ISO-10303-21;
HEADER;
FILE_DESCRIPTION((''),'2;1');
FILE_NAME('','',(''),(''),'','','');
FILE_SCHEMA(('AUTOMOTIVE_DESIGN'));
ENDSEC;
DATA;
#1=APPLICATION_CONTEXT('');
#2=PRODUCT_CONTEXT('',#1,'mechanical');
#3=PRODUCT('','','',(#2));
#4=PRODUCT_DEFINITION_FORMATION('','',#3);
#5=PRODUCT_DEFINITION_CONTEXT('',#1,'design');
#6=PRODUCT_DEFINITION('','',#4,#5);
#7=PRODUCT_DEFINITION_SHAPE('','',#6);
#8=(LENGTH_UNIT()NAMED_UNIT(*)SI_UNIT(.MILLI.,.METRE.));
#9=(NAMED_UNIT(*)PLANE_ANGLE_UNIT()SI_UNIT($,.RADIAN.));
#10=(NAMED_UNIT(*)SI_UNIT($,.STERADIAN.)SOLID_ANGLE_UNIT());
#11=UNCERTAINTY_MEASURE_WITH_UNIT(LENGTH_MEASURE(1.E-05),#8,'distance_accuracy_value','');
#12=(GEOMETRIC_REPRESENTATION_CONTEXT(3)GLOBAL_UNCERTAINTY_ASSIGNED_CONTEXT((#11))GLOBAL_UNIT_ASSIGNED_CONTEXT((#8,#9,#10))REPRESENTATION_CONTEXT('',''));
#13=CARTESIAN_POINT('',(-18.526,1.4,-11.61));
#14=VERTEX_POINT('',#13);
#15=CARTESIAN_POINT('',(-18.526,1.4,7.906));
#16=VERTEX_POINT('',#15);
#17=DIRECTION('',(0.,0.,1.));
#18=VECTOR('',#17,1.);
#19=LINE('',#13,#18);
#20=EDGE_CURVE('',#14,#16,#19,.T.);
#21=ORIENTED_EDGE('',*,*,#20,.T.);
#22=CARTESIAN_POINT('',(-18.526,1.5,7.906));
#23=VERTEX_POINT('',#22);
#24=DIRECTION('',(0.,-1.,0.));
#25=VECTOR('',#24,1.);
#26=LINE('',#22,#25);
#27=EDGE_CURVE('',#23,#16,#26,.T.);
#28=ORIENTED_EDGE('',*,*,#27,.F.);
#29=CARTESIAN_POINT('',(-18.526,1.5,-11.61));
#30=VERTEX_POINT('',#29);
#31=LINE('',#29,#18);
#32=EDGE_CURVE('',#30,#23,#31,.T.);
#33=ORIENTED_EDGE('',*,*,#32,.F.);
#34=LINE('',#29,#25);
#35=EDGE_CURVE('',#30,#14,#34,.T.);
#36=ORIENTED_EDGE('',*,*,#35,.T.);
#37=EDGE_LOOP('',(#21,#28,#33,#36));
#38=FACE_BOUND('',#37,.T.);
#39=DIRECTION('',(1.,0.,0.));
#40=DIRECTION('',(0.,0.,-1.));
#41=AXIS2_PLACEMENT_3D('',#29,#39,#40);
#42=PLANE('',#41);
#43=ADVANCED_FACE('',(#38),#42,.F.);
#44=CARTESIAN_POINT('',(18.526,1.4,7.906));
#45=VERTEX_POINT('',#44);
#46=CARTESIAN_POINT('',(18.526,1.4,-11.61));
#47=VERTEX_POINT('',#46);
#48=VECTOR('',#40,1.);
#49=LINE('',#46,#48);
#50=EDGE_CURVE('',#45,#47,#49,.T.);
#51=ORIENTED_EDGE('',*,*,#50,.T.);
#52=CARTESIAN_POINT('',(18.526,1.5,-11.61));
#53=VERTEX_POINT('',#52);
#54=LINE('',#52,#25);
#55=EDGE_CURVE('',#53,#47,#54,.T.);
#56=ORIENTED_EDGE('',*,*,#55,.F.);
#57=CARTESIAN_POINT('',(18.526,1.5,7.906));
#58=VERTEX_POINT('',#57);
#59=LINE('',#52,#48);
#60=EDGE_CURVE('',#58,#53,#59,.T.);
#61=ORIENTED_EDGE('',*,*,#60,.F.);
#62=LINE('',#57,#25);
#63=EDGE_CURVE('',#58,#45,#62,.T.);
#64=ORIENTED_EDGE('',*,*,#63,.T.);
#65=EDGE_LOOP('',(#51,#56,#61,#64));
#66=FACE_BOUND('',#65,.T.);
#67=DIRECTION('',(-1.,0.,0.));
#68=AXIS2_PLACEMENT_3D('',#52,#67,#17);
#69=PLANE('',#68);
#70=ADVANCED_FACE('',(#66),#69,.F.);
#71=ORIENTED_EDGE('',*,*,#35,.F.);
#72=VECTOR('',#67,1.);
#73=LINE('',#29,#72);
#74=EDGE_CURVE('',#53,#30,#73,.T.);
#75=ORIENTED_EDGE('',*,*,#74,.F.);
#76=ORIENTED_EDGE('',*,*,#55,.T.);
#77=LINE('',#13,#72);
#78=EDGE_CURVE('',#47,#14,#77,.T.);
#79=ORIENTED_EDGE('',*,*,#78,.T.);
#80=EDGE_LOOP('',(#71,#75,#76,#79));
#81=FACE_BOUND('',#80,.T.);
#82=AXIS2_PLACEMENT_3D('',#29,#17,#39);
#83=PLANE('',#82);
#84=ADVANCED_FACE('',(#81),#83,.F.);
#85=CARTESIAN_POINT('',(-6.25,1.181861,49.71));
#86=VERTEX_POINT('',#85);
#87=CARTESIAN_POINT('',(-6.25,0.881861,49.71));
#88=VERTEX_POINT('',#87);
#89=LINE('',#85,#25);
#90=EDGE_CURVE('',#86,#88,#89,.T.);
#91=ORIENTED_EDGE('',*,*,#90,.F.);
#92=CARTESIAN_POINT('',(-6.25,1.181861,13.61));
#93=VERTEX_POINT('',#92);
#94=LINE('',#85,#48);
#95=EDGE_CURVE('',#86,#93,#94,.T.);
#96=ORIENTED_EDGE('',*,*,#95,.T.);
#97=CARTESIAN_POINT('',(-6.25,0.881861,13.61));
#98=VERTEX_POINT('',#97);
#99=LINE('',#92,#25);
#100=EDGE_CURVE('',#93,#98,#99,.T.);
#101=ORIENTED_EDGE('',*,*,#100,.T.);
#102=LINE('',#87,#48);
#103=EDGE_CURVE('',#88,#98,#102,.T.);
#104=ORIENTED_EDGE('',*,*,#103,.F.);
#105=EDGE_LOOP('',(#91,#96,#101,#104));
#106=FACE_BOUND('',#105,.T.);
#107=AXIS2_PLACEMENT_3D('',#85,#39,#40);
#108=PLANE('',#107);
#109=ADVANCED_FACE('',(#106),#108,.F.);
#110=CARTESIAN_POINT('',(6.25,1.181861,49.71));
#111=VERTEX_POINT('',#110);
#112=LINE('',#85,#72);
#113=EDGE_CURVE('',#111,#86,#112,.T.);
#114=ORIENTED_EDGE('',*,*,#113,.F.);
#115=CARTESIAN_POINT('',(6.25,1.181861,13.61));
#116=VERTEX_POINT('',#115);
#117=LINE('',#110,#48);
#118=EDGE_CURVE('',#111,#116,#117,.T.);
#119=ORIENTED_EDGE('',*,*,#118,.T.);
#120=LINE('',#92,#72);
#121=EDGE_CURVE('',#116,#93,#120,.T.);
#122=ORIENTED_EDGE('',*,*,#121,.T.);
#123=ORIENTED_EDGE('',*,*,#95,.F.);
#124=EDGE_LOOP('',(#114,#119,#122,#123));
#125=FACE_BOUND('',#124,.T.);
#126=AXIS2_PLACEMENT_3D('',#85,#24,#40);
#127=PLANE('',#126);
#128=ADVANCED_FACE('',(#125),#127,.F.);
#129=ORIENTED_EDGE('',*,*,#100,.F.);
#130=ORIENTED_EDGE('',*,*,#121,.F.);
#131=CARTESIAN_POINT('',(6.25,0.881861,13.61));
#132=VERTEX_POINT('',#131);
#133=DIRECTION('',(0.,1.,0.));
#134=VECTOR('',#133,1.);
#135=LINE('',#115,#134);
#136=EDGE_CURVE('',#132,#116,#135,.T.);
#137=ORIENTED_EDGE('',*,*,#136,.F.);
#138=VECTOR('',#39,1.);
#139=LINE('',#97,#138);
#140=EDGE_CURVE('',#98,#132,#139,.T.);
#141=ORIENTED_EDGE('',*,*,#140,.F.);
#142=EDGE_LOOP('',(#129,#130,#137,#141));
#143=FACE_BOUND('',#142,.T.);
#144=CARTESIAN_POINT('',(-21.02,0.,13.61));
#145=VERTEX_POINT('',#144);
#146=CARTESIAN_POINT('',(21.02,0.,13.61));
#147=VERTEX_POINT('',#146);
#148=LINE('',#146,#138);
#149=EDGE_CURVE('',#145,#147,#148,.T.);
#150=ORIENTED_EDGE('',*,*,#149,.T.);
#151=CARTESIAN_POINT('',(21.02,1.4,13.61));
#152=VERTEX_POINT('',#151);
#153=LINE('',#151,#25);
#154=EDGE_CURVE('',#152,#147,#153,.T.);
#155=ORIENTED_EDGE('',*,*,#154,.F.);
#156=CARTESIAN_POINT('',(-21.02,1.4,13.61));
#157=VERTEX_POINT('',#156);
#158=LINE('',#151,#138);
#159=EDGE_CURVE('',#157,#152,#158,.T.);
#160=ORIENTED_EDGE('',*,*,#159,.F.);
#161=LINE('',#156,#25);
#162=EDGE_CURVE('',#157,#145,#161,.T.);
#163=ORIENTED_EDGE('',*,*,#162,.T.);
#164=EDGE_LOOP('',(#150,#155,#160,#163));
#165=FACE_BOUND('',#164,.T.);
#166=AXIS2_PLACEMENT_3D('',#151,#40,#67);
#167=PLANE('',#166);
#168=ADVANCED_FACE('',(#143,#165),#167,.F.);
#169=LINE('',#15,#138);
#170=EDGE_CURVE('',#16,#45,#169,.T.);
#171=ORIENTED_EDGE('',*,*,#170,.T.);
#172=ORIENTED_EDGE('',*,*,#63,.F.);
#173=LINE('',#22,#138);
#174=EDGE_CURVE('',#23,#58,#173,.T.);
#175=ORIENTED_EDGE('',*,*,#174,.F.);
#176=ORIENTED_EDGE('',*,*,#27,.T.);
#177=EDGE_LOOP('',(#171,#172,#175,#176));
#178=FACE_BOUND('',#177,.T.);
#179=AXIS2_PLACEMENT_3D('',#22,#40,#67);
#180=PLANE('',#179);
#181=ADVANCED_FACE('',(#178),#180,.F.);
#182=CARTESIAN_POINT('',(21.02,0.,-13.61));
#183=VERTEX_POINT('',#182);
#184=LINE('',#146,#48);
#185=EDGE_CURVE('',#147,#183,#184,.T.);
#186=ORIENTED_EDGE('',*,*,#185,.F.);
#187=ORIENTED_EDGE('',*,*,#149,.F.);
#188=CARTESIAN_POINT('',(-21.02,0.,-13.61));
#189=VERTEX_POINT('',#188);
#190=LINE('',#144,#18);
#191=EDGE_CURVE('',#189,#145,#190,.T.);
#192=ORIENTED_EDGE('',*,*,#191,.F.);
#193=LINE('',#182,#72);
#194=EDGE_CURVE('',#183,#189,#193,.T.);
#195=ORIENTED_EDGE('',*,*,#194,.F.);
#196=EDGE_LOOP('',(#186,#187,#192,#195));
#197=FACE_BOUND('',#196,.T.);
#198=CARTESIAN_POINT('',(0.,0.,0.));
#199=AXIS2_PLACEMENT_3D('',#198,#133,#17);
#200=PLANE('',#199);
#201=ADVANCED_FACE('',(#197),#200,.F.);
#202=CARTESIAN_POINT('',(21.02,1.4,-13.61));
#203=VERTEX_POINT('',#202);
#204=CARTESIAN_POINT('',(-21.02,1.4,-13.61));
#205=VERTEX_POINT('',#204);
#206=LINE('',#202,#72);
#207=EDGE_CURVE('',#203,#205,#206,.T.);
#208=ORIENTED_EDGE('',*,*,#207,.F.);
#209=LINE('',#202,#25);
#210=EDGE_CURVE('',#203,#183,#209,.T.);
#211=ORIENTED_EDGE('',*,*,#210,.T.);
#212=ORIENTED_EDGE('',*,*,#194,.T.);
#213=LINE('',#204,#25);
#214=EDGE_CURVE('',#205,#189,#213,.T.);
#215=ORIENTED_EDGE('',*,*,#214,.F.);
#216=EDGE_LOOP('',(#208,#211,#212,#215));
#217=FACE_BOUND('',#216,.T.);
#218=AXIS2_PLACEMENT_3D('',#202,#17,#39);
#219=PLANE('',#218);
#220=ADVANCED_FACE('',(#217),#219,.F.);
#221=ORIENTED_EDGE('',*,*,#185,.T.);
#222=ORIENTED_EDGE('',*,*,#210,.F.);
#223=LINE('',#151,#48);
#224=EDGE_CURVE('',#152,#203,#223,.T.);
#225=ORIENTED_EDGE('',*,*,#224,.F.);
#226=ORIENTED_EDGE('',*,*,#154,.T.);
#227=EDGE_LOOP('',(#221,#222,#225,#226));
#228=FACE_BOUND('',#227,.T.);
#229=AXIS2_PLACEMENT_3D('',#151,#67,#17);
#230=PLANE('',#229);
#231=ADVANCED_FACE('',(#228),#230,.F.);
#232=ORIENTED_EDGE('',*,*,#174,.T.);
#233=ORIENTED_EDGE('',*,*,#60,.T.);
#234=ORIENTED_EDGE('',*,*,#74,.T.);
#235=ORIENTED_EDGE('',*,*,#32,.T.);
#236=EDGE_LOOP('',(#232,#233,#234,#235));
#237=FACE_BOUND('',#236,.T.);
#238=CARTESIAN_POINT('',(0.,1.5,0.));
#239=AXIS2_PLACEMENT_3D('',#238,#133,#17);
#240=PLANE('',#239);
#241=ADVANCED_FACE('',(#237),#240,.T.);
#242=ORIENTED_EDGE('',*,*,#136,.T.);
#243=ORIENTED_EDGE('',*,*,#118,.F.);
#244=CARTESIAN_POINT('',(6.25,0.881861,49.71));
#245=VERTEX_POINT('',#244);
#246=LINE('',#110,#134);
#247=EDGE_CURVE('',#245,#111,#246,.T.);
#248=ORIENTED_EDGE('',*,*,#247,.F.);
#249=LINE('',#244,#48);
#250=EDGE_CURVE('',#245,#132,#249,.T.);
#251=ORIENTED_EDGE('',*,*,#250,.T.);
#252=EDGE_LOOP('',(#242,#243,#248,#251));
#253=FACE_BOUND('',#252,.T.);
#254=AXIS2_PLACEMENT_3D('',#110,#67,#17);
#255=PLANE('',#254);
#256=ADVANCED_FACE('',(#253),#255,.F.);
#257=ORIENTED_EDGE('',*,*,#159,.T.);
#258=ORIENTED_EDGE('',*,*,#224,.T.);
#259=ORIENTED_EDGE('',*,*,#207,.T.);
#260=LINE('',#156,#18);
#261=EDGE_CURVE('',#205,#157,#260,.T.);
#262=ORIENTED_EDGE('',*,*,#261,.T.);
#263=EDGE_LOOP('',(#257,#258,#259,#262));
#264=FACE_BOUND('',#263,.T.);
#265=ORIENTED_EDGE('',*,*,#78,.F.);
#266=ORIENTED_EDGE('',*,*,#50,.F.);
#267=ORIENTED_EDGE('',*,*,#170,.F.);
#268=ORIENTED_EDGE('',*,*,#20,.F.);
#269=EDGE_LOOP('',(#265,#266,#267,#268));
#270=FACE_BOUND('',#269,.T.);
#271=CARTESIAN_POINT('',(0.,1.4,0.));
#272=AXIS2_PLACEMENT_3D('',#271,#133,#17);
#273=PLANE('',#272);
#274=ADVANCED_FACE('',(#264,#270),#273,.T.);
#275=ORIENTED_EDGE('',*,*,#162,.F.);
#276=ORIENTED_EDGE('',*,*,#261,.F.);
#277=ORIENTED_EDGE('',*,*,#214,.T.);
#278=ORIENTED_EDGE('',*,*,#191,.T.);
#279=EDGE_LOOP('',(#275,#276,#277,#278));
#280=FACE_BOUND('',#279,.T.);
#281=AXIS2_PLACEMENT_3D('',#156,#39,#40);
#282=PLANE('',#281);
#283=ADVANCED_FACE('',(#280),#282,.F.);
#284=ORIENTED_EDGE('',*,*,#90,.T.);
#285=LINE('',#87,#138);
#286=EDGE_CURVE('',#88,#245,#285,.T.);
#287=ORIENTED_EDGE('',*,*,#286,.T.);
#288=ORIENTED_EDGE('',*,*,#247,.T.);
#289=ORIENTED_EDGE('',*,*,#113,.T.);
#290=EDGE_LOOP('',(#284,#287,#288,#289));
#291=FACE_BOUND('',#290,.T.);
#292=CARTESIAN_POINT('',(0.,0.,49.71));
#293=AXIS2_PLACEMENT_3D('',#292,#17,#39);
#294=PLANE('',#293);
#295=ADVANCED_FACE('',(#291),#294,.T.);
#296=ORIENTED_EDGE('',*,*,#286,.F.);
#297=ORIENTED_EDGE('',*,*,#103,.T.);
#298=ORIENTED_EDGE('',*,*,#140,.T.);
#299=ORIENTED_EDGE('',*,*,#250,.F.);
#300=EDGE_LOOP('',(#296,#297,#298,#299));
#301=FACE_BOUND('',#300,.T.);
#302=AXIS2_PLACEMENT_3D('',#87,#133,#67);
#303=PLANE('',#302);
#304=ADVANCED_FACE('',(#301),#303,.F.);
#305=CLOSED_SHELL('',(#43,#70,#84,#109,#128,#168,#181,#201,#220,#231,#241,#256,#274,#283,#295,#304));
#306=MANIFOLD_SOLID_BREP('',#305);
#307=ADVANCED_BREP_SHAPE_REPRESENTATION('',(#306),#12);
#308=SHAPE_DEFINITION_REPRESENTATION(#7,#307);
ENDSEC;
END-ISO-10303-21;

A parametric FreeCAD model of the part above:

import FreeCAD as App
import Part
import Sketcher
from FreeCAD import Vector
Q = App.Units.Quantity

doc = App.newDocument("Part")
params = doc.addObject("Spreadsheet::Sheet", "Params")
for row, (alias, value) in enumerate([
    ("sketch1_width", "42.04 mm"),
    ("sketch1_height", "27.22 mm"),
    ("pad1_length", "1.4 mm"),
    ("pad2_length", "0.1 mm"),
    ("sketch3_width", "12.5 mm"),
    ("sketch3_height", "0.3 mm"),
    ("pad3_length", "36.1 mm"),
], start=1):
    params.set(f"A{row}", alias)
    params.set(f"B{row}", "=" + value)
    params.setAlias(f"B{row}", alias)

body = doc.addObject("PartDesign::Body", "Body")

sketch1 = doc.addObject("Sketcher::SketchObject", "Sketch")
body.addObject(sketch1)
sketch1.AttachmentSupport = (doc.XZ_Plane, [""])
sketch1.MapMode = "FlatFace"
sketch1.addGeometry([
    Part.LineSegment(Vector(-21, -14, 0), Vector(-21, 14, 0)),
    Part.LineSegment(Vector(-21, 14, 0), Vector(21, 14, 0)),
    Part.LineSegment(Vector(21, 14, 0), Vector(21, -14, 0)),
    Part.LineSegment(Vector(21, -14, 0), Vector(-21, -14, 0)),
], False)
sketch1.addConstraint([
    Sketcher.Constraint("Coincident", 0, 2, 1, 1),
    Sketcher.Constraint("Coincident", 1, 2, 2, 1),
    Sketcher.Constraint("Coincident", 2, 2, 3, 1),
    Sketcher.Constraint("Coincident", 3, 2, 0, 1),
    Sketcher.Constraint("Vertical", 0),
    Sketcher.Constraint("Horizontal", 1),
    Sketcher.Constraint("Vertical", 2),
    Sketcher.Constraint("Horizontal", 3),
    Sketcher.Constraint("Symmetric", 0, 2, 2, 2, -1, 1),
    Sketcher.Constraint("DistanceX", 1, 1, 1, 2, Q("42.04 mm")),
    Sketcher.Constraint("DistanceY", 0, 1, 0, 2, Q("27.22 mm")),
])
sketch1.setExpression("Constraints[9]", "Params.sketch1_width")
sketch1.setExpression("Constraints[10]", "Params.sketch1_height")
pad1 = doc.addObject("PartDesign::Pad", "Pad")
body.addObject(pad1)
pad1.Profile = sketch1
pad1.setExpression("Length", "Params.pad1_length")
pad1.Reversed = True

sketch2 = doc.addObject("Sketcher::SketchObject", "Sketch001")
body.addObject(sketch2)
sketch2.AttachmentSupport = (doc.XZ_Plane, [""])
sketch2.MapMode = "FlatFace"
sketch2.AttachmentOffset = App.Placement(Vector(0, 0, -1.4), App.Rotation())
sketch2.addGeometry([
    Part.LineSegment(Vector(-19, -12, 0), Vector(-19, 8, 0)),
    Part.LineSegment(Vector(-19, 8, 0), Vector(19, 8, 0)),
    Part.LineSegment(Vector(19, 8, 0), Vector(19, -12, 0)),
    Part.LineSegment(Vector(19, -12, 0), Vector(-19, -12, 0)),
], False)
sketch2.addConstraint([
    Sketcher.Constraint("Coincident", 0, 2, 1, 1),
    Sketcher.Constraint("Coincident", 1, 2, 2, 1),
    Sketcher.Constraint("Coincident", 2, 2, 3, 1),
    Sketcher.Constraint("Coincident", 3, 2, 0, 1),
    Sketcher.Constraint("Vertical", 0),
    Sketcher.Constraint("Horizontal", 1),
    Sketcher.Constraint("Vertical", 2),
    Sketcher.Constraint("Horizontal", 3),
    Sketcher.Constraint("DistanceX", 1, 1, 1, 2, Q("37.052 mm")),
    Sketcher.Constraint("DistanceY", 0, 1, 0, 2, Q("19.516 mm")),
    Sketcher.Constraint("DistanceY", 2, 2, -1, 1, Q("11.61 mm")),
    Sketcher.Constraint("DistanceX", 0, 2, -1, 1, Q("18.526 mm")),
])
pad2 = doc.addObject("PartDesign::Pad", "Pad001")
body.addObject(pad2)
pad2.Profile = sketch2
pad2.setExpression("Length", "Params.pad2_length")
pad2.Reversed = True

sketch3 = doc.addObject("Sketcher::SketchObject", "Sketch002")
body.addObject(sketch3)
sketch3.AttachmentSupport = (doc.XY_Plane, [""])
sketch3.MapMode = "FlatFace"
sketch3.AttachmentOffset = App.Placement(Vector(0, 0, 13.61), App.Rotation())
sketch3.addGeometry([
    Part.LineSegment(Vector(-6.25, 1.18, 0), Vector(-6.25, 0.88, 0)),
    Part.LineSegment(Vector(-6.25, 0.88, 0), Vector(6.25, 0.88, 0)),
    Part.LineSegment(Vector(6.25, 0.88, 0), Vector(6.25, 1.18, 0)),
    Part.LineSegment(Vector(6.25, 1.18, 0), Vector(-6.25, 1.18, 0)),
], False)
sketch3.addConstraint([
    Sketcher.Constraint("Coincident", 0, 2, 1, 1),
    Sketcher.Constraint("Coincident", 1, 2, 2, 1),
    Sketcher.Constraint("Coincident", 2, 2, 3, 1),
    Sketcher.Constraint("Coincident", 3, 2, 0, 1),
    Sketcher.Constraint("Vertical", 0),
    Sketcher.Constraint("Horizontal", 1),
    Sketcher.Constraint("Vertical", 2),
    Sketcher.Constraint("Horizontal", 3),
    Sketcher.Constraint("DistanceX", 1, 1, 1, 2, Q("12.5 mm")),
    Sketcher.Constraint("DistanceY", 0, 2, 0, 1, Q("0.3 mm")),
    Sketcher.Constraint("DistanceX", 0, 2, -1, 1, Q("6.25 mm")),
    Sketcher.Constraint("DistanceY", -1, 1, 0, 2, Q("0.881861 mm")),
])
sketch3.setExpression("Constraints[8]", "Params.sketch3_width")
sketch3.setExpression("Constraints[9]", "Params.sketch3_height")
pad3 = doc.addObject("PartDesign::Pad", "Pad002")
body.addObject(pad3)
pad3.Profile = sketch3
pad3.setExpression("Length", "Params.pad3_length")

doc.recompute()
